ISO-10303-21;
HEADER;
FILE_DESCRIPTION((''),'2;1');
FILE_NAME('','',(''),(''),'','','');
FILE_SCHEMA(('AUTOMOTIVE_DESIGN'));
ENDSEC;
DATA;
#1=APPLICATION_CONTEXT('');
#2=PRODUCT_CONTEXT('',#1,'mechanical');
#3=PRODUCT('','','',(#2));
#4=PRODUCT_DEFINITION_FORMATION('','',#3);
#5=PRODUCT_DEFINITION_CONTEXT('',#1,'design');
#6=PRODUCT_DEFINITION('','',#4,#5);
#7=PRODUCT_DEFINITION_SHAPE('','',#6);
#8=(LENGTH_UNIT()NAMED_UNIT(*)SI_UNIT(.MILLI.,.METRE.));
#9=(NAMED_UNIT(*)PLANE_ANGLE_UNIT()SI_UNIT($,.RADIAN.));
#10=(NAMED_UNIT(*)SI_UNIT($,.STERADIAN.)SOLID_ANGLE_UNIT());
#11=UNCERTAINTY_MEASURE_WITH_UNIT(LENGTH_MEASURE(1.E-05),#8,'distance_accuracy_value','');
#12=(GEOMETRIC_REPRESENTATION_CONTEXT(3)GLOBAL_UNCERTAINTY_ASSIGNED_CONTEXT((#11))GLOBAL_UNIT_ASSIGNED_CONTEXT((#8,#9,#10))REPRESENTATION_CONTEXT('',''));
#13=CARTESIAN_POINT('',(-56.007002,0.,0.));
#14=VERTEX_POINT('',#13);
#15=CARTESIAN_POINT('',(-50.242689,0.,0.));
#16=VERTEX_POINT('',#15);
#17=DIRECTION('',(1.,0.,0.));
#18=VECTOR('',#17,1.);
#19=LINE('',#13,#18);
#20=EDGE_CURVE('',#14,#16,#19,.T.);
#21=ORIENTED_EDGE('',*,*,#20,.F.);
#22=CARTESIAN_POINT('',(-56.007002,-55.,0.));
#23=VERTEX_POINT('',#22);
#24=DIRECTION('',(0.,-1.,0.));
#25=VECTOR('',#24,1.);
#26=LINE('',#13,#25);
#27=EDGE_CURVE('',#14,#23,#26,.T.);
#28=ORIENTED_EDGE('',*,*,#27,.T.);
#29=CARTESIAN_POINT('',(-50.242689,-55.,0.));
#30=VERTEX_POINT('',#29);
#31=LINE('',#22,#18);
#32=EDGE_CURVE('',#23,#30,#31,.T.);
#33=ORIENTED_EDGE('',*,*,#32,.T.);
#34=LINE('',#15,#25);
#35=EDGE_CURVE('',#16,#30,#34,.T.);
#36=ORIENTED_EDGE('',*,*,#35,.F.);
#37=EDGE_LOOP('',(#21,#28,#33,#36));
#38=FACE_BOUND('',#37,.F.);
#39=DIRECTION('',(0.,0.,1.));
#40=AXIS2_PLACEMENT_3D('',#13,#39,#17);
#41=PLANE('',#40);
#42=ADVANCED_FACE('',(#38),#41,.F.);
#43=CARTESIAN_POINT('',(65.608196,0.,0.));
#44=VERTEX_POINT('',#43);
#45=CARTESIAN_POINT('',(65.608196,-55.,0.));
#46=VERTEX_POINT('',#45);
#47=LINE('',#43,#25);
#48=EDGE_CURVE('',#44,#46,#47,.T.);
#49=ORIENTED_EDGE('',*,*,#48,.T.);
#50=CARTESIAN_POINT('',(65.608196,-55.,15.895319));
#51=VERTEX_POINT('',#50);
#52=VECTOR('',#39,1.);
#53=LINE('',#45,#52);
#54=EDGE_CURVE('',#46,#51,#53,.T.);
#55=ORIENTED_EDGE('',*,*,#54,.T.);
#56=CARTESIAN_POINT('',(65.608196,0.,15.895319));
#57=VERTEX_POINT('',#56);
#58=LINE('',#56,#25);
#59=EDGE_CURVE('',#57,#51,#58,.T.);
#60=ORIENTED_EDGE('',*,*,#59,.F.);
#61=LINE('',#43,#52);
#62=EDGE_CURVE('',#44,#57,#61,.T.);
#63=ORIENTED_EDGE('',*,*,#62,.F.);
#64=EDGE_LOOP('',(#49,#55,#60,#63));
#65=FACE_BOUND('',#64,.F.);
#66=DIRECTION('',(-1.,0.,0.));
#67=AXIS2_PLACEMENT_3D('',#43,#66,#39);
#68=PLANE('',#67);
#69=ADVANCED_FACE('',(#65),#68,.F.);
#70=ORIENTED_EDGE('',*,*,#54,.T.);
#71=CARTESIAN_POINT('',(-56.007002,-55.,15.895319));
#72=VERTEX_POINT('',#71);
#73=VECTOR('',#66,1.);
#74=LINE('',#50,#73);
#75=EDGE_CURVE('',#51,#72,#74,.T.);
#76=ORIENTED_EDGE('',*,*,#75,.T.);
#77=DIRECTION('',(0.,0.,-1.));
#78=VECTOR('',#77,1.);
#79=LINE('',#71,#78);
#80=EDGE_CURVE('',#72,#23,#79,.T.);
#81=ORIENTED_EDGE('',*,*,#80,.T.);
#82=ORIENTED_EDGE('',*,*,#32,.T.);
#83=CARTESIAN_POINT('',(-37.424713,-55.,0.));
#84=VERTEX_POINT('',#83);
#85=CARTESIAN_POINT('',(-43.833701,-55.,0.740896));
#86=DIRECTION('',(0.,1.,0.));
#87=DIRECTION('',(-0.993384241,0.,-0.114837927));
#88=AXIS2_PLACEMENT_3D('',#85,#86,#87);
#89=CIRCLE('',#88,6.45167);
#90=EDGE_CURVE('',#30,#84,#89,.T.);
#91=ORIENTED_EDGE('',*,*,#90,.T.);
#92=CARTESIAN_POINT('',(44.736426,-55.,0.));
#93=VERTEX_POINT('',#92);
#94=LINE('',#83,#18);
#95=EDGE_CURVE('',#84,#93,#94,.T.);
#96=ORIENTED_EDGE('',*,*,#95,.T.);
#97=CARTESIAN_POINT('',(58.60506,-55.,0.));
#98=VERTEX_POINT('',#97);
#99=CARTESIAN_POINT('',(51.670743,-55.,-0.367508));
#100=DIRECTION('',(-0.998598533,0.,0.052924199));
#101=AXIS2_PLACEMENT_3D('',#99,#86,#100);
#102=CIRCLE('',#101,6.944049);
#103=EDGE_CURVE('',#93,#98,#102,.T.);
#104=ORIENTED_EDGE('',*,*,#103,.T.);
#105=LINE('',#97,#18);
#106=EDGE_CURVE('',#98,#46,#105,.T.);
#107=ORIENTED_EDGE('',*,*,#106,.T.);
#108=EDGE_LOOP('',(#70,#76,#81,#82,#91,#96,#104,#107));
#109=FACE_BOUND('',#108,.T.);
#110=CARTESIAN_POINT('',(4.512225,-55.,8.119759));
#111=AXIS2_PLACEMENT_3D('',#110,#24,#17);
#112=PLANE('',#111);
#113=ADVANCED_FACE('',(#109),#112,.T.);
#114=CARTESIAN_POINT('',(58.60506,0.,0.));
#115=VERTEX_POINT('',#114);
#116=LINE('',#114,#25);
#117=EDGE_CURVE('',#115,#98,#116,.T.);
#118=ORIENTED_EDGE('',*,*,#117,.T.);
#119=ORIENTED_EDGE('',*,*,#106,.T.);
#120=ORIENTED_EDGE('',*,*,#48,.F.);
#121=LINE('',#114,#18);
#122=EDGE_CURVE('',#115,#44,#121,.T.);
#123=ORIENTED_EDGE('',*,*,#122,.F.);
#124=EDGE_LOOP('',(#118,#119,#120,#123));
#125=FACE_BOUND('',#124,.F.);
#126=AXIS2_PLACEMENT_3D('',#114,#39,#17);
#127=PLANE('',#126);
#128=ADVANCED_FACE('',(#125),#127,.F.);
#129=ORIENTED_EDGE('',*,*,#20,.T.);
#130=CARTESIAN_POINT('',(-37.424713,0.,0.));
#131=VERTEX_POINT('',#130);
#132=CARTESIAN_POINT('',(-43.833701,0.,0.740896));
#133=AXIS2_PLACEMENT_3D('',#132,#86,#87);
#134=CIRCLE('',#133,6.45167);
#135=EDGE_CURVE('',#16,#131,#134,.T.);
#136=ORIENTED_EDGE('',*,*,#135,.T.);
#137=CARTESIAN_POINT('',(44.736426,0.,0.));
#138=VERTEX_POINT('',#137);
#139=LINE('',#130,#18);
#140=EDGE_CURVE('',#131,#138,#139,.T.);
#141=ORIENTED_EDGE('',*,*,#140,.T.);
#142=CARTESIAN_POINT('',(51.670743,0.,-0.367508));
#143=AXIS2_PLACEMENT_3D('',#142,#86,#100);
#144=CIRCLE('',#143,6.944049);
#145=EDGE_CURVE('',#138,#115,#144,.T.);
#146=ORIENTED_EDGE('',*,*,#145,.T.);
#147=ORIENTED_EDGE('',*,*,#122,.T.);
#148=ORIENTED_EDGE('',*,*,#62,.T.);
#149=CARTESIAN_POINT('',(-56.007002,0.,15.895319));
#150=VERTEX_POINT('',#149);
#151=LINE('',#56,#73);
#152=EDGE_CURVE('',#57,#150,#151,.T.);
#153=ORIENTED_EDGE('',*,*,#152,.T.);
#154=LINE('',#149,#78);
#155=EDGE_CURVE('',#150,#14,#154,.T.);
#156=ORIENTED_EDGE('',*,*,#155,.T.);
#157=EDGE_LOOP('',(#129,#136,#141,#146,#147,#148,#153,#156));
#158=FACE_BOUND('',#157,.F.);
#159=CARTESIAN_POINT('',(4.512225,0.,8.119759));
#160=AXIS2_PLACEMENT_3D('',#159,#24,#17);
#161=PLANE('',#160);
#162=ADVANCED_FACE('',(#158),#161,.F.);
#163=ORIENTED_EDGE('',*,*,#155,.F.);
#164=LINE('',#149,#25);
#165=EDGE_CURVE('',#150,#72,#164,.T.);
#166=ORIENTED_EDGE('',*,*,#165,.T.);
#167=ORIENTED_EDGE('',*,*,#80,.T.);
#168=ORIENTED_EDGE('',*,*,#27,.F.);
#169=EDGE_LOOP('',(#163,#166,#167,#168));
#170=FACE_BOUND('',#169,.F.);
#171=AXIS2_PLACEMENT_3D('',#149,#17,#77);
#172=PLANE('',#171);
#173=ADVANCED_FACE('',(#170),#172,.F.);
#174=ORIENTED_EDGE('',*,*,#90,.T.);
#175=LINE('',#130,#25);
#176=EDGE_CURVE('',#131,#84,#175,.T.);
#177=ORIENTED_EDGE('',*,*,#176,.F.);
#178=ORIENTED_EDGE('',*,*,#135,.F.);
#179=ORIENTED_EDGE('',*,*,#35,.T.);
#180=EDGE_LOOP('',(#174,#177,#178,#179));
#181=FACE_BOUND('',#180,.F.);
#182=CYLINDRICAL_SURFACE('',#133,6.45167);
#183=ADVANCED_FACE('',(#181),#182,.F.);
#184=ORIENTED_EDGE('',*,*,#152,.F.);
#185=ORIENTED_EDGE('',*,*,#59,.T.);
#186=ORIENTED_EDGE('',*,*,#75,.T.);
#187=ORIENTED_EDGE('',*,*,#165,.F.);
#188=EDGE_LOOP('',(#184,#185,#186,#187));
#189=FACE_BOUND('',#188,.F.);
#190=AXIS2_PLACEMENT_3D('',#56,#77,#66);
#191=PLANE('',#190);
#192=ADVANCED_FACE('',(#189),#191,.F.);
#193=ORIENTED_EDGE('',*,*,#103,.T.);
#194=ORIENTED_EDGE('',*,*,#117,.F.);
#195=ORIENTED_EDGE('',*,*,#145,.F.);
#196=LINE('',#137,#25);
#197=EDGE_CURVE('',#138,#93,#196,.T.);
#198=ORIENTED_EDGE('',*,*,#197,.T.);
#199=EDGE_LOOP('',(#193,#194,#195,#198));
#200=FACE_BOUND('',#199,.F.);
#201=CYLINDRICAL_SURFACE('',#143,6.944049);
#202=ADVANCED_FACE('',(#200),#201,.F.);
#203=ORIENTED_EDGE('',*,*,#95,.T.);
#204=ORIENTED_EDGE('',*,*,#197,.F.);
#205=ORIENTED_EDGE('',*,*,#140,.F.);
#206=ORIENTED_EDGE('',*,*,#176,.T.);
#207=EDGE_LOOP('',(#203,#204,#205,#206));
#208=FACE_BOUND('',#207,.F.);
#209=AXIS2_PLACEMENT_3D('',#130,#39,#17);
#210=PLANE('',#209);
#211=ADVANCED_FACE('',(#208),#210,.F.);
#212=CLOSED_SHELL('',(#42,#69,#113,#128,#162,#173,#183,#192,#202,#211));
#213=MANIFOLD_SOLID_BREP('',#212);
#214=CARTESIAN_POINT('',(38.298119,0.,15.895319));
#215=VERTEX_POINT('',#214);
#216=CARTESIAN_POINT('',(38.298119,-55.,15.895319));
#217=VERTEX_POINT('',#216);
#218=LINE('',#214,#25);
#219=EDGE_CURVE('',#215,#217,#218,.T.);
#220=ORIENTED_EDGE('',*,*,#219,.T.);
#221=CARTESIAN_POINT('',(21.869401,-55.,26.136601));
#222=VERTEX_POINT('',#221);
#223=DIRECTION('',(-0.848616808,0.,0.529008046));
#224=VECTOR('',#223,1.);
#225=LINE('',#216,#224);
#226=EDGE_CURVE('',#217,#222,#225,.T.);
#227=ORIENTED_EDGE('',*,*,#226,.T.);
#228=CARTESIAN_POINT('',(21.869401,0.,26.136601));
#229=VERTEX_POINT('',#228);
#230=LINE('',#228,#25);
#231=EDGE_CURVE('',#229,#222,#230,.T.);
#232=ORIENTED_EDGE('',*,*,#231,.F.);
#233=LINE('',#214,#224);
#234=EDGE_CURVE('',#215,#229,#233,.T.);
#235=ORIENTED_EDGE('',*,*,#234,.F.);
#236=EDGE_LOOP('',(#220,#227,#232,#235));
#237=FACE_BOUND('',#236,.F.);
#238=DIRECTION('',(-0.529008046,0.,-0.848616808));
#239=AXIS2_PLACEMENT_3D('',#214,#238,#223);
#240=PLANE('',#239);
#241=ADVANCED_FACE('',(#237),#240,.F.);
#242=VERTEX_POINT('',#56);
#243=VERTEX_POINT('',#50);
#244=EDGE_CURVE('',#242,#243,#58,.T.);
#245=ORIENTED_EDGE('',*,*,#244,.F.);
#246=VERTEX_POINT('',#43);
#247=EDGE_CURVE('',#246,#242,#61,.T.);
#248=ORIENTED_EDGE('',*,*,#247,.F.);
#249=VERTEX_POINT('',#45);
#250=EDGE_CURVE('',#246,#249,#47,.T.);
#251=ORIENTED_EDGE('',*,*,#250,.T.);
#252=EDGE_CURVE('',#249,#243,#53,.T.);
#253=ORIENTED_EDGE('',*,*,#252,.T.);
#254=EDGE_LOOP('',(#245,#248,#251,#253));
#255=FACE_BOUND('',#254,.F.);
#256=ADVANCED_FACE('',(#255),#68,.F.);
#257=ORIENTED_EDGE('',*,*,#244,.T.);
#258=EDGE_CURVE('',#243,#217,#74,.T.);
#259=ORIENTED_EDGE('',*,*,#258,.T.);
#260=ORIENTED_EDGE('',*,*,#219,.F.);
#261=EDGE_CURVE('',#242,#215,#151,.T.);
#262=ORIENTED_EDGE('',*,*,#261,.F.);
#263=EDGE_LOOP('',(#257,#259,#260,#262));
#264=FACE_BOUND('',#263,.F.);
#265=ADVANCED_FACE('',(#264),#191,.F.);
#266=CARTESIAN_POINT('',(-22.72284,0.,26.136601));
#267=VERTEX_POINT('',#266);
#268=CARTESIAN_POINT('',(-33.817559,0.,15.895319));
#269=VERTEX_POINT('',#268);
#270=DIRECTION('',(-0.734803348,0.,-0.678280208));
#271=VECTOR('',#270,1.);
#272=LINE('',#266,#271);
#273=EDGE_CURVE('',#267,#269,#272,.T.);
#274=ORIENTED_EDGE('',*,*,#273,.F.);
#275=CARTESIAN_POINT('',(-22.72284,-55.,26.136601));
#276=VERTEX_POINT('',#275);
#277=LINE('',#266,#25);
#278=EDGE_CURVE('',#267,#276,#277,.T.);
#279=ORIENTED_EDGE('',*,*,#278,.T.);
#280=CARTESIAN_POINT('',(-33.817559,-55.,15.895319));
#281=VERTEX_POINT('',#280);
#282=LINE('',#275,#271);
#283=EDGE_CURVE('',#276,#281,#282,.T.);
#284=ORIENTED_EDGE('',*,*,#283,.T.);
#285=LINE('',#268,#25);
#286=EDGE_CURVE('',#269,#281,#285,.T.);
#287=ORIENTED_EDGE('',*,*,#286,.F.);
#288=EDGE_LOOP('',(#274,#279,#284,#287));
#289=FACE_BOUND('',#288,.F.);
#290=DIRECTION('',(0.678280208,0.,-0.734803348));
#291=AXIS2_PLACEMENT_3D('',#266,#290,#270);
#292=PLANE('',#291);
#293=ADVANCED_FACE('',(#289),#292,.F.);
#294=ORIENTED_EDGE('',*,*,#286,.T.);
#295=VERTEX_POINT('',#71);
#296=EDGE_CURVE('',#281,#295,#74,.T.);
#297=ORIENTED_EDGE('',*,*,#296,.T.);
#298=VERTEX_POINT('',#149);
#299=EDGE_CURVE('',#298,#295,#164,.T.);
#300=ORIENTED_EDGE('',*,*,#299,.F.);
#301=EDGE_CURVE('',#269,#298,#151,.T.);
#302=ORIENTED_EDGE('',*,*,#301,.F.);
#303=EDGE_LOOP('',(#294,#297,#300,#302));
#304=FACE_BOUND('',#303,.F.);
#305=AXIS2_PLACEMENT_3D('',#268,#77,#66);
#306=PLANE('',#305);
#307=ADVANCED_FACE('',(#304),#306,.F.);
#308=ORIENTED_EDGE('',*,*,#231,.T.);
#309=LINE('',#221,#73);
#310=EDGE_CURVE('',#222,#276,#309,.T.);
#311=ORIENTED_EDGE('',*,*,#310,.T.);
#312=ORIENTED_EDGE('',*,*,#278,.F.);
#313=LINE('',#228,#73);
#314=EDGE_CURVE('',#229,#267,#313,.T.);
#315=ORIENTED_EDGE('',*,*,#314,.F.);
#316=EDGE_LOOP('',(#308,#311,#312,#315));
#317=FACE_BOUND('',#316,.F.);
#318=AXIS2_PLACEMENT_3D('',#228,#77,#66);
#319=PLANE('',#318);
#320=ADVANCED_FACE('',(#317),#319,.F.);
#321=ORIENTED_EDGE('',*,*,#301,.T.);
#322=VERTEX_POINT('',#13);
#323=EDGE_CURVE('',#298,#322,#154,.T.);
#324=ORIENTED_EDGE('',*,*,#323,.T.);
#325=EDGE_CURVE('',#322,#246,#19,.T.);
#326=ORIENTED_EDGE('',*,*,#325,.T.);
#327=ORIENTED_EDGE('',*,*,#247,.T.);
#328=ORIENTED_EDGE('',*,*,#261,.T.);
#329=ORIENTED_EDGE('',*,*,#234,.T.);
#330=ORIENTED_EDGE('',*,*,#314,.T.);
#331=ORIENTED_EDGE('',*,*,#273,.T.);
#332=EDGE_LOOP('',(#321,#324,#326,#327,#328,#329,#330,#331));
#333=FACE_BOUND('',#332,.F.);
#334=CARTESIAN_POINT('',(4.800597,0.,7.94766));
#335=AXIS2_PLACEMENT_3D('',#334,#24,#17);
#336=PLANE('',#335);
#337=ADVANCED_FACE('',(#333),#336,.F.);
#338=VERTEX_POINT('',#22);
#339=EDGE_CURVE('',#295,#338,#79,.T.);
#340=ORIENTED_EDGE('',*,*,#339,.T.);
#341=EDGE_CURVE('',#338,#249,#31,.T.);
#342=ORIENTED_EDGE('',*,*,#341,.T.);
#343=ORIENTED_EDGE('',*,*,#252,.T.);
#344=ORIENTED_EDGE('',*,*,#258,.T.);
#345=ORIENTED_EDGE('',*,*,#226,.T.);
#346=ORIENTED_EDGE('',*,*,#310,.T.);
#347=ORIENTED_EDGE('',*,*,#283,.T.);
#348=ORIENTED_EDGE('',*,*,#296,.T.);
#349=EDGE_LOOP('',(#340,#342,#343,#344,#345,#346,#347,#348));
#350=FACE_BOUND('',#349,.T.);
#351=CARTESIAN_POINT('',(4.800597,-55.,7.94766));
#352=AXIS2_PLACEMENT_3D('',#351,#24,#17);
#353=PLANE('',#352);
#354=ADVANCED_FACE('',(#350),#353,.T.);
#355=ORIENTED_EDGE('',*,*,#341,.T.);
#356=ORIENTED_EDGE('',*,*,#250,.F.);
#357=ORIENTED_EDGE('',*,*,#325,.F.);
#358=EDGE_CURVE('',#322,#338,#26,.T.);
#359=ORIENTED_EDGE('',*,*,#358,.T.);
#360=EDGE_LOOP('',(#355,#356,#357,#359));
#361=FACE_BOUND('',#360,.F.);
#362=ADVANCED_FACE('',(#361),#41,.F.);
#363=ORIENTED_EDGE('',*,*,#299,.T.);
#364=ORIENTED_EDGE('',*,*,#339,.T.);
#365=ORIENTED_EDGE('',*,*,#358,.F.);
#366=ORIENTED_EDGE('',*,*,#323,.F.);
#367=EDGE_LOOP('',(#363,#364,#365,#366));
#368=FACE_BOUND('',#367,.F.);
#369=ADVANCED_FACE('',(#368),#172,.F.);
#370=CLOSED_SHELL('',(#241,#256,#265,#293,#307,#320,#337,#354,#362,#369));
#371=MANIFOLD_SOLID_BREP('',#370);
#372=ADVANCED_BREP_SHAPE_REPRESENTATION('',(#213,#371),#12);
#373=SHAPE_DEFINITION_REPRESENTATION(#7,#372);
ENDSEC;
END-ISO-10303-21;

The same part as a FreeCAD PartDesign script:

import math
import FreeCAD as App
import Part
import Sketcher
Q = App.Units.Quantity


def add_polygon(sketch, points):
    """Adds a closed chain of lines whose ends are joined by coincident constraints."""
    first, n = sketch.GeometryCount, len(points)
    for a, b in zip(points, points[1:] + points[:1]):
        sketch.addGeometry(Part.LineSegment(App.Vector(*a, 0), App.Vector(*b, 0)), False)
    for i in range(n):
        sketch.addConstraint(Sketcher.Constraint("Coincident", first + i, 2, first + (i + 1) % n, 1))

doc = App.newDocument("Part")
body = doc.addObject("PartDesign::Body", "Body")

# Sketch on XZ plane
sketch1 = body.newObject("Sketcher::SketchObject", "Sketch")
sketch1.AttachmentSupport = (doc.getObject("XZ_Plane"), [""])
sketch1.MapMode = "FlatFace"
sketch1.addGeometry([
    Part.ArcOfCircle(Part.Circle(App.Vector(52, 0, 0), App.Vector(0, 0, 1), 7), math.radians(3), math.radians(177)),  # 0
    Part.LineSegment(App.Vector(59, 0, 0), App.Vector(66, 0, 0)),  # 1
    Part.LineSegment(App.Vector(66, 0, 0), App.Vector(66, 16, 0)),  # 2
    Part.LineSegment(App.Vector(66, 16, 0), App.Vector(-56, 16, 0)),  # 3
    Part.LineSegment(App.Vector(-56, 16, 0), App.Vector(-56, 0, 0)),  # 4
    Part.LineSegment(App.Vector(-56, 0, 0), App.Vector(-50, 0, 0)),  # 5
    Part.ArcOfCircle(Part.Circle(App.Vector(-44, 1, 0), App.Vector(0, 0, 1), 6), math.radians(-7), math.radians(187)),  # 6
    Part.LineSegment(App.Vector(-37, 0, 0), App.Vector(45, 0, 0)),  # 7
], False)
sketch1.addConstraint([
    Sketcher.Constraint("Coincident", 0, 1, 1, 1),
    Sketcher.Constraint("Coincident", 1, 2, 2, 1),
    Sketcher.Constraint("Coincident", 2, 2, 3, 1),
    Sketcher.Constraint("Coincident", 3, 2, 4, 1),
    Sketcher.Constraint("Coincident", 4, 2, 5, 1),
    Sketcher.Constraint("Coincident", 5, 2, 6, 2),
    Sketcher.Constraint("Coincident", 6, 1, 7, 1),
    Sketcher.Constraint("Coincident", 7, 2, 0, 2),
    Sketcher.Constraint("Horizontal", 1),
    Sketcher.Constraint("Vertical", 2),
    Sketcher.Constraint("Horizontal", 3),
    Sketcher.Constraint("Vertical", 4),
    Sketcher.Constraint("Horizontal", 5),
    Sketcher.Constraint("Horizontal", 7),
    Sketcher.Constraint("PointOnObject", 0, 1, -1),
    Sketcher.Constraint("PointOnObject", 4, 2, -1),
    Sketcher.Constraint("PointOnObject", 6, 1, -1),
    Sketcher.Constraint("Radius", 0, Q("6.944049 mm")),
    Sketcher.Constraint("Radius", 6, Q("6.45167 mm")),
    Sketcher.Constraint("DistanceX", 3, 2, -1, 1, Q("56.007002 mm")),
    Sketcher.Constraint("DistanceX", 7, 1, 7, 2, Q("82.16114 mm")),
    Sketcher.Constraint("DistanceY", 2, 1, 2, 2, Q("15.895319 mm")),
    Sketcher.Constraint("DistanceX", 6, 3, -1, 1, Q("43.833701 mm")),
    Sketcher.Constraint("DistanceX", 1, 1, 1, 2, Q("7.003136 mm")),
    Sketcher.Constraint("DistanceX", 3, 2, 3, 1, Q("121.615198 mm")),
    Sketcher.Constraint("DistanceX", 5, 1, 5, 2, Q("5.764313 mm")),
])
pad1 = body.newObject("PartDesign::Pad", "Pad")
pad1.Profile = sketch1
pad1.Length = 55
body2 = doc.addObject("PartDesign::Body", "Body001")

# Sketch on XZ plane
sketch2 = body2.newObject("Sketcher::SketchObject", "Sketch001")
sketch2.AttachmentSupport = (doc.getObject("XZ_Plane001"), [""])
sketch2.MapMode = "FlatFace"
add_polygon(sketch2, [(-56, 16), (-56, 0), (66, 0), (66, 16), (38, 16), (22, 26), (-23, 26), (-34, 16)])  # lines 0-7
sketch2.addConstraint([
    Sketcher.Constraint("Vertical", 0),
    Sketcher.Constraint("Horizontal", 1),
    Sketcher.Constraint("Vertical", 2),
    Sketcher.Constraint("Horizontal", 3),
    Sketcher.Constraint("Horizontal", 5),
    Sketcher.Constraint("Horizontal", 7),
    Sketcher.Constraint("PointOnObject", 0, 2, -1),
    Sketcher.Constraint("Horizontal", 3, 2, 6, 2),
    Sketcher.Constraint("DistanceX", 0, 2, -1, 1, Q("56.007002 mm")),
    Sketcher.Constraint("DistanceX", 5, 2, 5, 1, Q("44.592241 mm")),
    Sketcher.Constraint("DistanceY", 0, 2, 0, 1, Q("15.895319 mm")),
    Sketcher.Constraint("DistanceX", -1, 1, 4, 2, Q("21.869401 mm")),
    Sketcher.Constraint("DistanceY", -1, 1, 4, 2, Q("26.136601 mm")),
    Sketcher.Constraint("DistanceX", 1, 1, 1, 2, Q("121.615198 mm")),
    Sketcher.Constraint("DistanceX", 3, 2, 3, 1, Q("27.310077 mm")),
    Sketcher.Constraint("DistanceX", 7, 2, 7, 1, Q("22.189442 mm")),
])
pad2 = body2.newObject("PartDesign::Pad", "Pad001")
pad2.Profile = sketch2
pad2.Length = 55

doc.recompute()
